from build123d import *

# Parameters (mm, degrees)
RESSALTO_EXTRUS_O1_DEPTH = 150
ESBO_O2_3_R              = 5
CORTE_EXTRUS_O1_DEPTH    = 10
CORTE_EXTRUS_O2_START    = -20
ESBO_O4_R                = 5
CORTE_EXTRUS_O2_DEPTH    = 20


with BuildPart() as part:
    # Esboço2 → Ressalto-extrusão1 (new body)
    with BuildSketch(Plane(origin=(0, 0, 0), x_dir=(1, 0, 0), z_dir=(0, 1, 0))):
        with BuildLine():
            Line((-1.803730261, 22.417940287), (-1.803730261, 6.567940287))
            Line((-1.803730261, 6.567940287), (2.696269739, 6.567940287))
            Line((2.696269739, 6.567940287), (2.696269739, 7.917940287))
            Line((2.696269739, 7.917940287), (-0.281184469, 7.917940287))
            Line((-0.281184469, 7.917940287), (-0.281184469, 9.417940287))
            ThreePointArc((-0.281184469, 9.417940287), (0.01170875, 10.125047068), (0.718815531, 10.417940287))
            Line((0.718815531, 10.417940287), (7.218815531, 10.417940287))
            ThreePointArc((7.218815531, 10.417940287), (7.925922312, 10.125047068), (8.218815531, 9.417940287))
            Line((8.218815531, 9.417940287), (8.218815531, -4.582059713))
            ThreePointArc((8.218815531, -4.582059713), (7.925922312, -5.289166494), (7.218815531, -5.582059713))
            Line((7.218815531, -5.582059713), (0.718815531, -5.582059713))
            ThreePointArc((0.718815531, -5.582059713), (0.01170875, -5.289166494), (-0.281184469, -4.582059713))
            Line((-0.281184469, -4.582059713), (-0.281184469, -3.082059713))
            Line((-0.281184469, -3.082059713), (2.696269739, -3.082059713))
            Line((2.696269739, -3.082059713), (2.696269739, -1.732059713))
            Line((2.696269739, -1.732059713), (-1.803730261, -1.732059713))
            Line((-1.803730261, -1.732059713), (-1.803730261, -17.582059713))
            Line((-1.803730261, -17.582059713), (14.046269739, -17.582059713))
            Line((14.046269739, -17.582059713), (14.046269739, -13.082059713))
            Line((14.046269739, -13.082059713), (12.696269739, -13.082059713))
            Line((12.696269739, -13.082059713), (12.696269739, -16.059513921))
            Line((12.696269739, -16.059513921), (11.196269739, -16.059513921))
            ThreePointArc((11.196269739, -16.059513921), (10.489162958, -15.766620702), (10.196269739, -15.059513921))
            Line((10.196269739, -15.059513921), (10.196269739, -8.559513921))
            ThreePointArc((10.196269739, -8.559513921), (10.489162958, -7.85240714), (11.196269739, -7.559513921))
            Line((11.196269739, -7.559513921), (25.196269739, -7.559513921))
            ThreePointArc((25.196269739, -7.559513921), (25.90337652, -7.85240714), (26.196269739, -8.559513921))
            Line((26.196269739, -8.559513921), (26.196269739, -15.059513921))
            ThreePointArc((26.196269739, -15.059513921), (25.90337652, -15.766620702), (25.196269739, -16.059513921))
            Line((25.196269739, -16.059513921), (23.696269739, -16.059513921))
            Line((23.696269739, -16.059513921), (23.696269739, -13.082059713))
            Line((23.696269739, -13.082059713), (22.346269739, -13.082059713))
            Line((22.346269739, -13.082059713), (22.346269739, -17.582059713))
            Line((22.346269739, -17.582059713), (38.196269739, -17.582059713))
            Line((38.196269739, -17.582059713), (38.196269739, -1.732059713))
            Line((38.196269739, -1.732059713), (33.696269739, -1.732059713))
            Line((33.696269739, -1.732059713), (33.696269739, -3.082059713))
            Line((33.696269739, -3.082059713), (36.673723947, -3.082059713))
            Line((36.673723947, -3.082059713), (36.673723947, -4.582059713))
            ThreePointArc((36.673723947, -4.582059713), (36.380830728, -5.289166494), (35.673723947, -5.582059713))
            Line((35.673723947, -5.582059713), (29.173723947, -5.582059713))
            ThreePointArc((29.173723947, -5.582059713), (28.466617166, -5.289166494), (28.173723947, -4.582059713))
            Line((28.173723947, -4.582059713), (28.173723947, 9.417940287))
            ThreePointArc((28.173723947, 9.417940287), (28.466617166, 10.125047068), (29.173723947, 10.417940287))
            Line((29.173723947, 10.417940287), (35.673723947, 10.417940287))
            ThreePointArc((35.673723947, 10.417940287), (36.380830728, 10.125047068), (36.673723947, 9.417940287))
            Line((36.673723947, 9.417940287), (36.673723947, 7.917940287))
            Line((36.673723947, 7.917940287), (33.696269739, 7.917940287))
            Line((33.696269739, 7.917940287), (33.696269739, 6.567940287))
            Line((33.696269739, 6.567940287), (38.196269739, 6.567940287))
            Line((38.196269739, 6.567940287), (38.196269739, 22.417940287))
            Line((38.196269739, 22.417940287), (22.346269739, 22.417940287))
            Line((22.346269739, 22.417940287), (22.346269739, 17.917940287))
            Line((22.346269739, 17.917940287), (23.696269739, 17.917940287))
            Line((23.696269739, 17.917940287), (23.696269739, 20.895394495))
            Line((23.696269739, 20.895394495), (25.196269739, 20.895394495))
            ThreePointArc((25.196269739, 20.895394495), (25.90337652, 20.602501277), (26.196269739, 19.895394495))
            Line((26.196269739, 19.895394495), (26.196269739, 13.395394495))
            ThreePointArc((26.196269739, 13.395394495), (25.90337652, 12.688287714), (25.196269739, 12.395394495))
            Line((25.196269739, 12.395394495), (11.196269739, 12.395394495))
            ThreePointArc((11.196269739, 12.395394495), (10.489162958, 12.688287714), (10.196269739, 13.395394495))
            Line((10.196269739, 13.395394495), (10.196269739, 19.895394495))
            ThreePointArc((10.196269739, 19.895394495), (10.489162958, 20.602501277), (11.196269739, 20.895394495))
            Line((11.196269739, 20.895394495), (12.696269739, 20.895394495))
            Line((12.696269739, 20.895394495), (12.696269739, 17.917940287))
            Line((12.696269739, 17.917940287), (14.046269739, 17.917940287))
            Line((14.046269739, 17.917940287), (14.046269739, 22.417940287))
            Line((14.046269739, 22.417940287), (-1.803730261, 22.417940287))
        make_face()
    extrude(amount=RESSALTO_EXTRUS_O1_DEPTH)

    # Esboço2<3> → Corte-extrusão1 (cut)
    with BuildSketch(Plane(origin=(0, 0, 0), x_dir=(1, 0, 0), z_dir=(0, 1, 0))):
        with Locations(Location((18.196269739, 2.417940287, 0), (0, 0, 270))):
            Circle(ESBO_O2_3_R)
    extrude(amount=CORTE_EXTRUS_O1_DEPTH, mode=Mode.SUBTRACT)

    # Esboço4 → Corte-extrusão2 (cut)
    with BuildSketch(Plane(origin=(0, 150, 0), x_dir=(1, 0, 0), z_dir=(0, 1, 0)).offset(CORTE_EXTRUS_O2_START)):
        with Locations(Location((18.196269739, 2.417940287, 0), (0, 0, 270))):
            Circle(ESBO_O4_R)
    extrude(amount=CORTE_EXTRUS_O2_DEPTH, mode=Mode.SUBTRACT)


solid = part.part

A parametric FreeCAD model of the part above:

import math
import FreeCAD as App
import Part
import Sketcher
from FreeCAD import Vector

doc = App.newDocument("Part")
body = doc.addObject("PartDesign::Body", "Body")

# Sketch on XZ plane
sketch1 = doc.addObject("Sketcher::SketchObject", "Sketch")
body.addObject(sketch1)
sketch1.AttachmentSupport = (doc.XZ_Plane, [""])
sketch1.MapMode = "FlatFace"
sketch1.addGeometry([
    Part.LineSegment(Vector(-1.8, -22.4, 0), Vector(-1.8, -6.6, 0)),  # 0
    Part.LineSegment(Vector(-1.8, -6.6, 0), Vector(2.7, -6.6, 0)),  # 1
    Part.LineSegment(Vector(2.7, -6.6, 0), Vector(2.7, -7.9, 0)),  # 2
    Part.LineSegment(Vector(2.7, -7.9, 0), Vector(-0.3, -7.9, 0)),  # 3
    Part.LineSegment(Vector(-0.3, -7.9, 0), Vector(-0.3, -9.4, 0)),  # 4
    Part.ArcOfCircle(Part.Circle(Vector(0.7, -9.4, 0), Vector(0, 0, 1), 1), math.radians(-180), math.radians(-90)),  # 5
    Part.LineSegment(Vector(0.7, -10.4, 0), Vector(7.2, -10.4, 0)),  # 6
    Part.ArcOfCircle(Part.Circle(Vector(7.2, -9.4, 0), Vector(0, 0, 1), 1), math.radians(-90), math.radians(0)),  # 7
    Part.LineSegment(Vector(8.2, -9.4, 0), Vector(8.2, 4.6, 0)),  # 8
    Part.ArcOfCircle(Part.Circle(Vector(7.2, 4.6, 0), Vector(0, 0, 1), 1), math.radians(0), math.radians(90)),  # 9
    Part.LineSegment(Vector(7.2, 5.6, 0), Vector(0.7, 5.6, 0)),  # 10
    Part.ArcOfCircle(Part.Circle(Vector(0.7, 4.6, 0), Vector(0, 0, 1), 1), math.radians(90), math.radians(180)),  # 11
    Part.LineSegment(Vector(-0.3, 4.6, 0), Vector(-0.3, 3.1, 0)),  # 12
    Part.LineSegment(Vector(-0.3, 3.1, 0), Vector(2.7, 3.1, 0)),  # 13
    Part.LineSegment(Vector(2.7, 3.1, 0), Vector(2.7, 1.7, 0)),  # 14
    Part.LineSegment(Vector(2.7, 1.7, 0), Vector(-1.8, 1.7, 0)),  # 15
    Part.LineSegment(Vector(-1.8, 1.7, 0), Vector(-1.8, 17.6, 0)),  # 16
    Part.LineSegment(Vector(-1.8, 17.6, 0), Vector(14, 17.6, 0)),  # 17
    Part.LineSegment(Vector(14, 17.6, 0), Vector(14, 13.1, 0)),  # 18
    Part.LineSegment(Vector(14, 13.1, 0), Vector(12.7, 13.1, 0)),  # 19
    Part.LineSegment(Vector(12.7, 13.1, 0), Vector(12.7, 16.1, 0)),  # 20
    Part.LineSegment(Vector(12.7, 16.1, 0), Vector(11.2, 16.1, 0)),  # 21
    Part.ArcOfCircle(Part.Circle(Vector(11.2, 15.1, 0), Vector(0, 0, 1), 1), math.radians(90), math.radians(180)),  # 22
    Part.LineSegment(Vector(10.2, 15.1, 0), Vector(10.2, 8.6, 0)),  # 23
    Part.ArcOfCircle(Part.Circle(Vector(11.2, 8.6, 0), Vector(0, 0, 1), 1), math.radians(-180), math.radians(-90)),  # 24
    Part.LineSegment(Vector(11.2, 7.6, 0), Vector(25.2, 7.6, 0)),  # 25
    Part.ArcOfCircle(Part.Circle(Vector(25.2, 8.6, 0), Vector(0, 0, 1), 1), math.radians(-90), math.radians(0)),  # 26
    Part.LineSegment(Vector(26.2, 8.6, 0), Vector(26.2, 15.1, 0)),  # 27
    Part.ArcOfCircle(Part.Circle(Vector(25.2, 15.1, 0), Vector(0, 0, 1), 1), math.radians(0), math.radians(90)),  # 28
    Part.LineSegment(Vector(25.2, 16.1, 0), Vector(23.7, 16.1, 0)),  # 29
    Part.LineSegment(Vector(23.7, 16.1, 0), Vector(23.7, 13.1, 0)),  # 30
    Part.LineSegment(Vector(23.7, 13.1, 0), Vector(22.3, 13.1, 0)),  # 31
    Part.LineSegment(Vector(22.3, 13.1, 0), Vector(22.3, 17.6, 0)),  # 32
    Part.LineSegment(Vector(22.3, 17.6, 0), Vector(38.2, 17.6, 0)),  # 33
    Part.LineSegment(Vector(38.2, 17.6, 0), Vector(38.2, 1.7, 0)),  # 34
    Part.LineSegment(Vector(38.2, 1.7, 0), Vector(33.7, 1.7, 0)),  # 35
    Part.LineSegment(Vector(33.7, 1.7, 0), Vector(33.7, 3.1, 0)),  # 36
    Part.LineSegment(Vector(33.7, 3.1, 0), Vector(36.7, 3.1, 0)),  # 37
    Part.LineSegment(Vector(36.7, 3.1, 0), Vector(36.7, 4.6, 0)),  # 38
    Part.ArcOfCircle(Part.Circle(Vector(35.7, 4.6, 0), Vector(0, 0, 1), 1), math.radians(0), math.radians(90)),  # 39
    Part.LineSegment(Vector(35.7, 5.6, 0), Vector(29.2, 5.6, 0)),  # 40
    Part.ArcOfCircle(Part.Circle(Vector(29.2, 4.6, 0), Vector(0, 0, 1), 1), math.radians(90), math.radians(180)),  # 41
    Part.LineSegment(Vector(28.2, 4.6, 0), Vector(28.2, -9.4, 0)),  # 42
    Part.ArcOfCircle(Part.Circle(Vector(29.2, -9.4, 0), Vector(0, 0, 1), 1), math.radians(-180), math.radians(-90)),  # 43
    Part.LineSegment(Vector(29.2, -10.4, 0), Vector(35.7, -10.4, 0)),  # 44
    Part.ArcOfCircle(Part.Circle(Vector(35.7, -9.4, 0), Vector(0, 0, 1), 1), math.radians(-90), math.radians(0)),  # 45
    Part.LineSegment(Vector(36.7, -9.4, 0), Vector(36.7, -7.9, 0)),  # 46
    Part.LineSegment(Vector(36.7, -7.9, 0), Vector(33.7, -7.9, 0)),  # 47
    Part.LineSegment(Vector(33.7, -7.9, 0), Vector(33.7, -6.6, 0)),  # 48
    Part.LineSegment(Vector(33.7, -6.6, 0), Vector(38.2, -6.6, 0)),  # 49
    Part.LineSegment(Vector(38.2, -6.6, 0), Vector(38.2, -22.4, 0)),  # 50
    Part.LineSegment(Vector(38.2, -22.4, 0), Vector(22.3, -22.4, 0)),  # 51
    Part.LineSegment(Vector(22.3, -22.4, 0), Vector(22.3, -17.9, 0)),  # 52
    Part.LineSegment(Vector(22.3, -17.9, 0), Vector(23.7, -17.9, 0)),  # 53
    Part.LineSegment(Vector(23.7, -17.9, 0), Vector(23.7, -20.9, 0)),  # 54
    Part.LineSegment(Vector(23.7, -20.9, 0), Vector(25.2, -20.9, 0)),  # 55
    Part.ArcOfCircle(Part.Circle(Vector(25.2, -19.9, 0), Vector(0, 0, 1), 1), math.radians(-90), math.radians(0)),  # 56
    Part.LineSegment(Vector(26.2, -19.9, 0), Vector(26.2, -13.4, 0)),  # 57
    Part.ArcOfCircle(Part.Circle(Vector(25.2, -13.4, 0), Vector(0, 0, 1), 1), math.radians(0), math.radians(90)),  # 58
    Part.LineSegment(Vector(25.2, -12.4, 0), Vector(11.2, -12.4, 0)),  # 59
    Part.ArcOfCircle(Part.Circle(Vector(11.2, -13.4, 0), Vector(0, 0, 1), 1), math.radians(90), math.radians(180)),  # 60
    Part.LineSegment(Vector(10.2, -13.4, 0), Vector(10.2, -19.9, 0)),  # 61
    Part.ArcOfCircle(Part.Circle(Vector(11.2, -19.9, 0), Vector(0, 0, 1), 1), math.radians(180), math.radians(270)),  # 62
    Part.LineSegment(Vector(11.2, -20.9, 0), Vector(12.7, -20.9, 0)),  # 63
    Part.LineSegment(Vector(12.7, -20.9, 0), Vector(12.7, -17.9, 0)),  # 64
    Part.LineSegment(Vector(12.7, -17.9, 0), Vector(14, -17.9, 0)),  # 65
    Part.LineSegment(Vector(14, -17.9, 0), Vector(14, -22.4, 0)),  # 66
    Part.LineSegment(Vector(14, -22.4, 0), Vector(-1.8, -22.4, 0)),  # 67
], False)
sketch1.addConstraint([
    Sketcher.Constraint("Coincident", 0, 2, 1, 1),
    Sketcher.Constraint("Coincident", 1, 2, 2, 1),
    Sketcher.Constraint("Coincident", 2, 2, 3, 1),
    Sketcher.Constraint("Coincident", 3, 2, 4, 1),
    Sketcher.Constraint("Tangent", 4, 2, 5, 1),
    Sketcher.Constraint("Tangent", 5, 2, 6, 1),
    Sketcher.Constraint("Tangent", 6, 2, 7, 1),
    Sketcher.Constraint("Tangent", 7, 2, 8, 1),
    Sketcher.Constraint("Tangent", 8, 2, 9, 1),
    Sketcher.Constraint("Tangent", 9, 2, 10, 1),
    Sketcher.Constraint("Tangent", 10, 2, 11, 1),
    Sketcher.Constraint("Tangent", 11, 2, 12, 1),
    Sketcher.Constraint("Coincident", 12, 2, 13, 1),
    Sketcher.Constraint("Coincident", 13, 2, 14, 1),
    Sketcher.Constraint("Coincident", 14, 2, 15, 1),
    Sketcher.Constraint("Coincident", 15, 2, 16, 1),
    Sketcher.Constraint("Coincident", 16, 2, 17, 1),
    Sketcher.Constraint("Coincident", 17, 2, 18, 1),
    Sketcher.Constraint("Coincident", 18, 2, 19, 1),
    Sketcher.Constraint("Coincident", 19, 2, 20, 1),
    Sketcher.Constraint("Coincident", 20, 2, 21, 1),
    Sketcher.Constraint("Tangent", 21, 2, 22, 1),
    Sketcher.Constraint("Tangent", 22, 2, 23, 1),
    Sketcher.Constraint("Tangent", 23, 2, 24, 1),
    Sketcher.Constraint("Tangent", 24, 2, 25, 1),
    Sketcher.Constraint("Tangent", 25, 2, 26, 1),
    Sketcher.Constraint("Tangent", 26, 2, 27, 1),
    Sketcher.Constraint("Tangent", 27, 2, 28, 1),
    Sketcher.Constraint("Tangent", 28, 2, 29, 1),
    Sketcher.Constraint("Coincident", 29, 2, 30, 1),
    Sketcher.Constraint("Coincident", 30, 2, 31, 1),
    Sketcher.Constraint("Coincident", 31, 2, 32, 1),
    Sketcher.Constraint("Coincident", 32, 2, 33, 1),
    Sketcher.Constraint("Coincident", 33, 2, 34, 1),
    Sketcher.Constraint("Coincident", 34, 2, 35, 1),
    Sketcher.Constraint("Coincident", 35, 2, 36, 1),
    Sketcher.Constraint("Coincident", 36, 2, 37, 1),
    Sketcher.Constraint("Coincident", 37, 2, 38, 1),
    Sketcher.Constraint("Tangent", 38, 2, 39, 1),
    Sketcher.Constraint("Tangent", 39, 2, 40, 1),
    Sketcher.Constraint("Tangent", 40, 2, 41, 1),
    Sketcher.Constraint("Tangent", 41, 2, 42, 1),
    Sketcher.Constraint("Tangent", 42, 2, 43, 1),
    Sketcher.Constraint("Tangent", 43, 2, 44, 1),
    Sketcher.Constraint("Tangent", 44, 2, 45, 1),
    Sketcher.Constraint("Tangent", 45, 2, 46, 1),
    Sketcher.Constraint("Coincident", 46, 2, 47, 1),
    Sketcher.Constraint("Coincident", 47, 2, 48, 1),
    Sketcher.Constraint("Coincident", 48, 2, 49, 1),
    Sketcher.Constraint("Coincident", 49, 2, 50, 1),
    Sketcher.Constraint("Coincident", 50, 2, 51, 1),
    Sketcher.Constraint("Coincident", 51, 2, 52, 1),
    Sketcher.Constraint("Coincident", 52, 2, 53, 1),
    Sketcher.Constraint("Coincident", 53, 2, 54, 1),
    Sketcher.Constraint("Coincident", 54, 2, 55, 1),
    Sketcher.Constraint("Tangent", 55, 2, 56, 1),
    Sketcher.Constraint("Tangent", 56, 2, 57, 1),
    Sketcher.Constraint("Tangent", 57, 2, 58, 1),
    Sketcher.Constraint("Tangent", 58, 2, 59, 1),
    Sketcher.Constraint("Tangent", 59, 2, 60, 1),
    Sketcher.Constraint("Tangent", 60, 2, 61, 1),
    Sketcher.Constraint("Tangent", 61, 2, 62, 1),
    Sketcher.Constraint("Tangent", 62, 2, 63, 1),
    Sketcher.Constraint("Coincident", 63, 2, 64, 1),
    Sketcher.Constraint("Coincident", 64, 2, 65, 1),
    Sketcher.Constraint("Coincident", 65, 2, 66, 1),
    Sketcher.Constraint("Coincident", 66, 2, 67, 1),
    Sketcher.Constraint("Coincident", 67, 2, 0, 1),
    Sketcher.Constraint("Vertical", 0),
    Sketcher.Constraint("Horizontal", 1),
    Sketcher.Constraint("Vertical", 2),
    Sketcher.Constraint("Horizontal", 3),
    Sketcher.Constraint("Vertical", 4),
    Sketcher.Constraint("Horizontal", 6),
    Sketcher.Constraint("Vertical", 8),
    Sketcher.Constraint("Horizontal", 10),
    Sketcher.Constraint("Vertical", 12),
    Sketcher.Constraint("Horizontal", 13),
    Sketcher.Constraint("Vertical", 14),
    Sketcher.Constraint("Horizontal", 15),
    Sketcher.Constraint("Vertical", 16),
    Sketcher.Constraint("Horizontal", 17),
    Sketcher.Constraint("Vertical", 18),
    Sketcher.Constraint("Horizontal", 19),
    Sketcher.Constraint("Vertical", 20),
    Sketcher.Constraint("Horizontal", 21),
    Sketcher.Constraint("Vertical", 23),
    Sketcher.Constraint("Horizontal", 25),
    Sketcher.Constraint("Vertical", 27),
    Sketcher.Constraint("Horizontal", 29),
    Sketcher.Constraint("Vertical", 30),
    Sketcher.Constraint("Horizontal", 31),
    Sketcher.Constraint("Vertical", 32),
    Sketcher.Constraint("Horizontal", 33),
    Sketcher.Constraint("Vertical", 34),
    Sketcher.Constraint("Horizontal", 35),
    Sketcher.Constraint("Vertical", 36),
    Sketcher.Constraint("Horizontal", 37),
    Sketcher.Constraint("Vertical", 38),
    Sketcher.Constraint("Horizontal", 40),
    Sketcher.Constraint("Vertical", 42),
    Sketcher.Constraint("Horizontal", 44),
    Sketcher.Constraint("Vertical", 46),
    Sketcher.Constraint("Horizontal", 47),
    Sketcher.Constraint("Vertical", 48),
    Sketcher.Constraint("Horizontal", 49),
    Sketcher.Constraint("Vertical", 50),
    Sketcher.Constraint("Horizontal", 51),
    Sketcher.Constraint("Vertical", 52),
    Sketcher.Constraint("Horizontal", 53),
    Sketcher.Constraint("Vertical", 54),
    Sketcher.Constraint("Horizontal", 55),
    Sketcher.Constraint("Vertical", 57),
    Sketcher.Constraint("Horizontal", 59),
    Sketcher.Constraint("Vertical", 61),
    Sketcher.Constraint("Horizontal", 63),
    Sketcher.Constraint("Vertical", 64),
    Sketcher.Constraint("Horizontal", 65),
    Sketcher.Constraint("Vertical", 66),
    Sketcher.Constraint("Horizontal", 67),
    Sketcher.Constraint("Equal", 5, 7),
    Sketcher.Constraint("Equal", 7, 9),
    Sketcher.Constraint("Equal", 9, 11),
    Sketcher.Constraint("Equal", 11, 22),
    Sketcher.Constraint("Equal", 22, 24),
    Sketcher.Constraint("Equal", 24, 26),
    Sketcher.Constraint("Equal", 26, 28),
    Sketcher.Constraint("Equal", 28, 39),
    Sketcher.Constraint("Equal", 39, 41),
    Sketcher.Constraint("Equal", 41, 43),
    Sketcher.Constraint("Equal", 43, 45),
    Sketcher.Constraint("Equal", 45, 56),
    Sketcher.Constraint("Equal", 56, 58),
    Sketcher.Constraint("Equal", 58, 60),
    Sketcher.Constraint("Equal", 60, 62),
    Sketcher.Constraint("Horizontal", 22, 3, 28, 3),
    Sketcher.Constraint("Horizontal", 11, 3, 39, 3),
    Sketcher.Constraint("Horizontal", 7, 3, 43, 3),
    Sketcher.Constraint("Horizontal", 56, 3, 62, 3),
    Sketcher.Constraint("Horizontal", 19, 2, 30, 2),
    Sketcher.Constraint("Horizontal", 17, 2, 32, 2),
    Sketcher.Constraint("Horizontal", 15, 2, 34, 2),
    Sketcher.Constraint("Horizontal", 13, 2, 36, 2),
    Sketcher.Constraint("Horizontal", 3, 2, 46, 2),
    Sketcher.Constraint("Horizontal", 1, 2, 48, 2),
    Sketcher.Constraint("Horizontal", 53, 2, 64, 2),
    Sketcher.Constraint("Horizontal", 51, 2, 66, 2),
    Sketcher.Constraint("Vertical", 5, 3, 11, 3),
    Sketcher.Constraint("Vertical", 39, 3, 45, 3),
    Sketcher.Constraint("Vertical", 28, 3, 56, 3),
    Sketcher.Constraint("Vertical", 24, 3, 60, 3),
    Sketcher.Constraint("Vertical", 2, 2, 13, 2),
    Sketcher.Constraint("Vertical", 0, 2, 15, 2),
    Sketcher.Constraint("Vertical", 36, 2, 47, 2),
    Sketcher.Constraint("Vertical", 34, 2, 49, 2),
    Sketcher.Constraint("Vertical", 32, 2, 51, 2),
    Sketcher.Constraint("Vertical", 30, 2, 53, 2),
    Sketcher.Constraint("Vertical", 20, 2, 63, 2),
    Sketcher.Constraint("Vertical", 18, 2, 65, 2),
    Sketcher.Constraint("Equal", 21, 29),
    Sketcher.Constraint("Equal", 19, 31),
    Sketcher.Constraint("Equal", 17, 33),
    Sketcher.Constraint("Equal", 15, 35),
    Sketcher.Constraint("Equal", 13, 37),
    Sketcher.Constraint("Equal", 10, 40),
    Sketcher.Constraint("Equal", 67, 0),
    Sketcher.Constraint("Equal", 65, 2),
    Sketcher.Constraint("Equal", 63, 4),
    Sketcher.Constraint("Equal", 59, 8),
    Sketcher.Constraint("Equal", 4, 12),
    Sketcher.Constraint("Equal", 2, 14),
    Sketcher.Constraint("Equal", 0, 16),
    Sketcher.Constraint("Equal", 49, 18),
    Sketcher.Constraint("Equal", 47, 20),
    Sketcher.Constraint("Equal", 44, 23),
    Sketcher.Constraint("Equal", 32, 52),
    Sketcher.Constraint("Equal", 30, 54),
    Sketcher.Constraint("Equal", 27, 57),
    Sketcher.Constraint("Radius", 5, 1.0),
    Sketcher.Constraint("DistanceX", 25, 1, 25, 2, 14.0),
    Sketcher.Constraint("DistanceX", 1, 1, 1, 2, 4.5),
    Sketcher.Constraint("DistanceX", 6, 1, 6, 2, 6.5),
    Sketcher.Constraint("DistanceX", 21, 2, 21, 1, 1.5),
    Sketcher.Constraint("DistanceX", 17, 1, 17, 2, 15.85),
    Sketcher.Constraint("DistanceX", 19, 2, 19, 1, 1.35),
    Sketcher.Constraint("DistanceX", 3, 2, 3, 1, 2.977454),
    Sketcher.Constraint("DistanceY", 5, 3, -1, 1, 9.41794),
    Sketcher.Constraint("DistanceX", -1, 1, 22, 3, 11.19627),
])
pad1 = doc.addObject("PartDesign::Pad", "Pad")
body.addObject(pad1)
pad1.Profile = sketch1
pad1.Length = 150
pad1.Reversed = True

# Sketch on XZ plane
sketch2 = doc.addObject("Sketcher::SketchObject", "Sketch001")
body.addObject(sketch2)
sketch2.AttachmentSupport = (doc.XZ_Plane, [""])
sketch2.MapMode = "FlatFace"
sketch2.addGeometry(Part.Circle(Vector(18, -2, 0), Vector(0, 0, 1), 5), False)
sketch2.addConstraint([
    Sketcher.Constraint("Diameter", 0, 10.0),
    Sketcher.Constraint("DistanceX", -1, 1, 0, 3, 18.19627),
    Sketcher.Constraint("DistanceY", 0, 3, -1, 1, 2.41794),
])
pocket1 = doc.addObject("PartDesign::Pocket", "Pocket")
body.addObject(pocket1)
pocket1.Profile = sketch2
pocket1.Length = 10

# Sketch on XZ plane
sketch3 = doc.addObject("Sketcher::SketchObject", "Sketch002")
body.addObject(sketch3)
sketch3.AttachmentSupport = (doc.XZ_Plane, [""])
sketch3.MapMode = "FlatFace"
sketch3.AttachmentOffset = App.Placement(Vector(0, 0, -130), App.Rotation())
sketch3.addGeometry(Part.Circle(Vector(18, -2, 0), Vector(0, 0, 1), 5), False)
sketch3.addConstraint([
    Sketcher.Constraint("Diameter", 0, 10.0),
    Sketcher.Constraint("DistanceX", -1, 1, 0, 3, 18.19627),
    Sketcher.Constraint("DistanceY", 0, 3, -1, 1, 2.41794),
])
pocket2 = doc.addObject("PartDesign::Pocket", "Pocket001")
body.addObject(pocket2)
pocket2.Profile = sketch3
pocket2.Length = 20

doc.recompute()
